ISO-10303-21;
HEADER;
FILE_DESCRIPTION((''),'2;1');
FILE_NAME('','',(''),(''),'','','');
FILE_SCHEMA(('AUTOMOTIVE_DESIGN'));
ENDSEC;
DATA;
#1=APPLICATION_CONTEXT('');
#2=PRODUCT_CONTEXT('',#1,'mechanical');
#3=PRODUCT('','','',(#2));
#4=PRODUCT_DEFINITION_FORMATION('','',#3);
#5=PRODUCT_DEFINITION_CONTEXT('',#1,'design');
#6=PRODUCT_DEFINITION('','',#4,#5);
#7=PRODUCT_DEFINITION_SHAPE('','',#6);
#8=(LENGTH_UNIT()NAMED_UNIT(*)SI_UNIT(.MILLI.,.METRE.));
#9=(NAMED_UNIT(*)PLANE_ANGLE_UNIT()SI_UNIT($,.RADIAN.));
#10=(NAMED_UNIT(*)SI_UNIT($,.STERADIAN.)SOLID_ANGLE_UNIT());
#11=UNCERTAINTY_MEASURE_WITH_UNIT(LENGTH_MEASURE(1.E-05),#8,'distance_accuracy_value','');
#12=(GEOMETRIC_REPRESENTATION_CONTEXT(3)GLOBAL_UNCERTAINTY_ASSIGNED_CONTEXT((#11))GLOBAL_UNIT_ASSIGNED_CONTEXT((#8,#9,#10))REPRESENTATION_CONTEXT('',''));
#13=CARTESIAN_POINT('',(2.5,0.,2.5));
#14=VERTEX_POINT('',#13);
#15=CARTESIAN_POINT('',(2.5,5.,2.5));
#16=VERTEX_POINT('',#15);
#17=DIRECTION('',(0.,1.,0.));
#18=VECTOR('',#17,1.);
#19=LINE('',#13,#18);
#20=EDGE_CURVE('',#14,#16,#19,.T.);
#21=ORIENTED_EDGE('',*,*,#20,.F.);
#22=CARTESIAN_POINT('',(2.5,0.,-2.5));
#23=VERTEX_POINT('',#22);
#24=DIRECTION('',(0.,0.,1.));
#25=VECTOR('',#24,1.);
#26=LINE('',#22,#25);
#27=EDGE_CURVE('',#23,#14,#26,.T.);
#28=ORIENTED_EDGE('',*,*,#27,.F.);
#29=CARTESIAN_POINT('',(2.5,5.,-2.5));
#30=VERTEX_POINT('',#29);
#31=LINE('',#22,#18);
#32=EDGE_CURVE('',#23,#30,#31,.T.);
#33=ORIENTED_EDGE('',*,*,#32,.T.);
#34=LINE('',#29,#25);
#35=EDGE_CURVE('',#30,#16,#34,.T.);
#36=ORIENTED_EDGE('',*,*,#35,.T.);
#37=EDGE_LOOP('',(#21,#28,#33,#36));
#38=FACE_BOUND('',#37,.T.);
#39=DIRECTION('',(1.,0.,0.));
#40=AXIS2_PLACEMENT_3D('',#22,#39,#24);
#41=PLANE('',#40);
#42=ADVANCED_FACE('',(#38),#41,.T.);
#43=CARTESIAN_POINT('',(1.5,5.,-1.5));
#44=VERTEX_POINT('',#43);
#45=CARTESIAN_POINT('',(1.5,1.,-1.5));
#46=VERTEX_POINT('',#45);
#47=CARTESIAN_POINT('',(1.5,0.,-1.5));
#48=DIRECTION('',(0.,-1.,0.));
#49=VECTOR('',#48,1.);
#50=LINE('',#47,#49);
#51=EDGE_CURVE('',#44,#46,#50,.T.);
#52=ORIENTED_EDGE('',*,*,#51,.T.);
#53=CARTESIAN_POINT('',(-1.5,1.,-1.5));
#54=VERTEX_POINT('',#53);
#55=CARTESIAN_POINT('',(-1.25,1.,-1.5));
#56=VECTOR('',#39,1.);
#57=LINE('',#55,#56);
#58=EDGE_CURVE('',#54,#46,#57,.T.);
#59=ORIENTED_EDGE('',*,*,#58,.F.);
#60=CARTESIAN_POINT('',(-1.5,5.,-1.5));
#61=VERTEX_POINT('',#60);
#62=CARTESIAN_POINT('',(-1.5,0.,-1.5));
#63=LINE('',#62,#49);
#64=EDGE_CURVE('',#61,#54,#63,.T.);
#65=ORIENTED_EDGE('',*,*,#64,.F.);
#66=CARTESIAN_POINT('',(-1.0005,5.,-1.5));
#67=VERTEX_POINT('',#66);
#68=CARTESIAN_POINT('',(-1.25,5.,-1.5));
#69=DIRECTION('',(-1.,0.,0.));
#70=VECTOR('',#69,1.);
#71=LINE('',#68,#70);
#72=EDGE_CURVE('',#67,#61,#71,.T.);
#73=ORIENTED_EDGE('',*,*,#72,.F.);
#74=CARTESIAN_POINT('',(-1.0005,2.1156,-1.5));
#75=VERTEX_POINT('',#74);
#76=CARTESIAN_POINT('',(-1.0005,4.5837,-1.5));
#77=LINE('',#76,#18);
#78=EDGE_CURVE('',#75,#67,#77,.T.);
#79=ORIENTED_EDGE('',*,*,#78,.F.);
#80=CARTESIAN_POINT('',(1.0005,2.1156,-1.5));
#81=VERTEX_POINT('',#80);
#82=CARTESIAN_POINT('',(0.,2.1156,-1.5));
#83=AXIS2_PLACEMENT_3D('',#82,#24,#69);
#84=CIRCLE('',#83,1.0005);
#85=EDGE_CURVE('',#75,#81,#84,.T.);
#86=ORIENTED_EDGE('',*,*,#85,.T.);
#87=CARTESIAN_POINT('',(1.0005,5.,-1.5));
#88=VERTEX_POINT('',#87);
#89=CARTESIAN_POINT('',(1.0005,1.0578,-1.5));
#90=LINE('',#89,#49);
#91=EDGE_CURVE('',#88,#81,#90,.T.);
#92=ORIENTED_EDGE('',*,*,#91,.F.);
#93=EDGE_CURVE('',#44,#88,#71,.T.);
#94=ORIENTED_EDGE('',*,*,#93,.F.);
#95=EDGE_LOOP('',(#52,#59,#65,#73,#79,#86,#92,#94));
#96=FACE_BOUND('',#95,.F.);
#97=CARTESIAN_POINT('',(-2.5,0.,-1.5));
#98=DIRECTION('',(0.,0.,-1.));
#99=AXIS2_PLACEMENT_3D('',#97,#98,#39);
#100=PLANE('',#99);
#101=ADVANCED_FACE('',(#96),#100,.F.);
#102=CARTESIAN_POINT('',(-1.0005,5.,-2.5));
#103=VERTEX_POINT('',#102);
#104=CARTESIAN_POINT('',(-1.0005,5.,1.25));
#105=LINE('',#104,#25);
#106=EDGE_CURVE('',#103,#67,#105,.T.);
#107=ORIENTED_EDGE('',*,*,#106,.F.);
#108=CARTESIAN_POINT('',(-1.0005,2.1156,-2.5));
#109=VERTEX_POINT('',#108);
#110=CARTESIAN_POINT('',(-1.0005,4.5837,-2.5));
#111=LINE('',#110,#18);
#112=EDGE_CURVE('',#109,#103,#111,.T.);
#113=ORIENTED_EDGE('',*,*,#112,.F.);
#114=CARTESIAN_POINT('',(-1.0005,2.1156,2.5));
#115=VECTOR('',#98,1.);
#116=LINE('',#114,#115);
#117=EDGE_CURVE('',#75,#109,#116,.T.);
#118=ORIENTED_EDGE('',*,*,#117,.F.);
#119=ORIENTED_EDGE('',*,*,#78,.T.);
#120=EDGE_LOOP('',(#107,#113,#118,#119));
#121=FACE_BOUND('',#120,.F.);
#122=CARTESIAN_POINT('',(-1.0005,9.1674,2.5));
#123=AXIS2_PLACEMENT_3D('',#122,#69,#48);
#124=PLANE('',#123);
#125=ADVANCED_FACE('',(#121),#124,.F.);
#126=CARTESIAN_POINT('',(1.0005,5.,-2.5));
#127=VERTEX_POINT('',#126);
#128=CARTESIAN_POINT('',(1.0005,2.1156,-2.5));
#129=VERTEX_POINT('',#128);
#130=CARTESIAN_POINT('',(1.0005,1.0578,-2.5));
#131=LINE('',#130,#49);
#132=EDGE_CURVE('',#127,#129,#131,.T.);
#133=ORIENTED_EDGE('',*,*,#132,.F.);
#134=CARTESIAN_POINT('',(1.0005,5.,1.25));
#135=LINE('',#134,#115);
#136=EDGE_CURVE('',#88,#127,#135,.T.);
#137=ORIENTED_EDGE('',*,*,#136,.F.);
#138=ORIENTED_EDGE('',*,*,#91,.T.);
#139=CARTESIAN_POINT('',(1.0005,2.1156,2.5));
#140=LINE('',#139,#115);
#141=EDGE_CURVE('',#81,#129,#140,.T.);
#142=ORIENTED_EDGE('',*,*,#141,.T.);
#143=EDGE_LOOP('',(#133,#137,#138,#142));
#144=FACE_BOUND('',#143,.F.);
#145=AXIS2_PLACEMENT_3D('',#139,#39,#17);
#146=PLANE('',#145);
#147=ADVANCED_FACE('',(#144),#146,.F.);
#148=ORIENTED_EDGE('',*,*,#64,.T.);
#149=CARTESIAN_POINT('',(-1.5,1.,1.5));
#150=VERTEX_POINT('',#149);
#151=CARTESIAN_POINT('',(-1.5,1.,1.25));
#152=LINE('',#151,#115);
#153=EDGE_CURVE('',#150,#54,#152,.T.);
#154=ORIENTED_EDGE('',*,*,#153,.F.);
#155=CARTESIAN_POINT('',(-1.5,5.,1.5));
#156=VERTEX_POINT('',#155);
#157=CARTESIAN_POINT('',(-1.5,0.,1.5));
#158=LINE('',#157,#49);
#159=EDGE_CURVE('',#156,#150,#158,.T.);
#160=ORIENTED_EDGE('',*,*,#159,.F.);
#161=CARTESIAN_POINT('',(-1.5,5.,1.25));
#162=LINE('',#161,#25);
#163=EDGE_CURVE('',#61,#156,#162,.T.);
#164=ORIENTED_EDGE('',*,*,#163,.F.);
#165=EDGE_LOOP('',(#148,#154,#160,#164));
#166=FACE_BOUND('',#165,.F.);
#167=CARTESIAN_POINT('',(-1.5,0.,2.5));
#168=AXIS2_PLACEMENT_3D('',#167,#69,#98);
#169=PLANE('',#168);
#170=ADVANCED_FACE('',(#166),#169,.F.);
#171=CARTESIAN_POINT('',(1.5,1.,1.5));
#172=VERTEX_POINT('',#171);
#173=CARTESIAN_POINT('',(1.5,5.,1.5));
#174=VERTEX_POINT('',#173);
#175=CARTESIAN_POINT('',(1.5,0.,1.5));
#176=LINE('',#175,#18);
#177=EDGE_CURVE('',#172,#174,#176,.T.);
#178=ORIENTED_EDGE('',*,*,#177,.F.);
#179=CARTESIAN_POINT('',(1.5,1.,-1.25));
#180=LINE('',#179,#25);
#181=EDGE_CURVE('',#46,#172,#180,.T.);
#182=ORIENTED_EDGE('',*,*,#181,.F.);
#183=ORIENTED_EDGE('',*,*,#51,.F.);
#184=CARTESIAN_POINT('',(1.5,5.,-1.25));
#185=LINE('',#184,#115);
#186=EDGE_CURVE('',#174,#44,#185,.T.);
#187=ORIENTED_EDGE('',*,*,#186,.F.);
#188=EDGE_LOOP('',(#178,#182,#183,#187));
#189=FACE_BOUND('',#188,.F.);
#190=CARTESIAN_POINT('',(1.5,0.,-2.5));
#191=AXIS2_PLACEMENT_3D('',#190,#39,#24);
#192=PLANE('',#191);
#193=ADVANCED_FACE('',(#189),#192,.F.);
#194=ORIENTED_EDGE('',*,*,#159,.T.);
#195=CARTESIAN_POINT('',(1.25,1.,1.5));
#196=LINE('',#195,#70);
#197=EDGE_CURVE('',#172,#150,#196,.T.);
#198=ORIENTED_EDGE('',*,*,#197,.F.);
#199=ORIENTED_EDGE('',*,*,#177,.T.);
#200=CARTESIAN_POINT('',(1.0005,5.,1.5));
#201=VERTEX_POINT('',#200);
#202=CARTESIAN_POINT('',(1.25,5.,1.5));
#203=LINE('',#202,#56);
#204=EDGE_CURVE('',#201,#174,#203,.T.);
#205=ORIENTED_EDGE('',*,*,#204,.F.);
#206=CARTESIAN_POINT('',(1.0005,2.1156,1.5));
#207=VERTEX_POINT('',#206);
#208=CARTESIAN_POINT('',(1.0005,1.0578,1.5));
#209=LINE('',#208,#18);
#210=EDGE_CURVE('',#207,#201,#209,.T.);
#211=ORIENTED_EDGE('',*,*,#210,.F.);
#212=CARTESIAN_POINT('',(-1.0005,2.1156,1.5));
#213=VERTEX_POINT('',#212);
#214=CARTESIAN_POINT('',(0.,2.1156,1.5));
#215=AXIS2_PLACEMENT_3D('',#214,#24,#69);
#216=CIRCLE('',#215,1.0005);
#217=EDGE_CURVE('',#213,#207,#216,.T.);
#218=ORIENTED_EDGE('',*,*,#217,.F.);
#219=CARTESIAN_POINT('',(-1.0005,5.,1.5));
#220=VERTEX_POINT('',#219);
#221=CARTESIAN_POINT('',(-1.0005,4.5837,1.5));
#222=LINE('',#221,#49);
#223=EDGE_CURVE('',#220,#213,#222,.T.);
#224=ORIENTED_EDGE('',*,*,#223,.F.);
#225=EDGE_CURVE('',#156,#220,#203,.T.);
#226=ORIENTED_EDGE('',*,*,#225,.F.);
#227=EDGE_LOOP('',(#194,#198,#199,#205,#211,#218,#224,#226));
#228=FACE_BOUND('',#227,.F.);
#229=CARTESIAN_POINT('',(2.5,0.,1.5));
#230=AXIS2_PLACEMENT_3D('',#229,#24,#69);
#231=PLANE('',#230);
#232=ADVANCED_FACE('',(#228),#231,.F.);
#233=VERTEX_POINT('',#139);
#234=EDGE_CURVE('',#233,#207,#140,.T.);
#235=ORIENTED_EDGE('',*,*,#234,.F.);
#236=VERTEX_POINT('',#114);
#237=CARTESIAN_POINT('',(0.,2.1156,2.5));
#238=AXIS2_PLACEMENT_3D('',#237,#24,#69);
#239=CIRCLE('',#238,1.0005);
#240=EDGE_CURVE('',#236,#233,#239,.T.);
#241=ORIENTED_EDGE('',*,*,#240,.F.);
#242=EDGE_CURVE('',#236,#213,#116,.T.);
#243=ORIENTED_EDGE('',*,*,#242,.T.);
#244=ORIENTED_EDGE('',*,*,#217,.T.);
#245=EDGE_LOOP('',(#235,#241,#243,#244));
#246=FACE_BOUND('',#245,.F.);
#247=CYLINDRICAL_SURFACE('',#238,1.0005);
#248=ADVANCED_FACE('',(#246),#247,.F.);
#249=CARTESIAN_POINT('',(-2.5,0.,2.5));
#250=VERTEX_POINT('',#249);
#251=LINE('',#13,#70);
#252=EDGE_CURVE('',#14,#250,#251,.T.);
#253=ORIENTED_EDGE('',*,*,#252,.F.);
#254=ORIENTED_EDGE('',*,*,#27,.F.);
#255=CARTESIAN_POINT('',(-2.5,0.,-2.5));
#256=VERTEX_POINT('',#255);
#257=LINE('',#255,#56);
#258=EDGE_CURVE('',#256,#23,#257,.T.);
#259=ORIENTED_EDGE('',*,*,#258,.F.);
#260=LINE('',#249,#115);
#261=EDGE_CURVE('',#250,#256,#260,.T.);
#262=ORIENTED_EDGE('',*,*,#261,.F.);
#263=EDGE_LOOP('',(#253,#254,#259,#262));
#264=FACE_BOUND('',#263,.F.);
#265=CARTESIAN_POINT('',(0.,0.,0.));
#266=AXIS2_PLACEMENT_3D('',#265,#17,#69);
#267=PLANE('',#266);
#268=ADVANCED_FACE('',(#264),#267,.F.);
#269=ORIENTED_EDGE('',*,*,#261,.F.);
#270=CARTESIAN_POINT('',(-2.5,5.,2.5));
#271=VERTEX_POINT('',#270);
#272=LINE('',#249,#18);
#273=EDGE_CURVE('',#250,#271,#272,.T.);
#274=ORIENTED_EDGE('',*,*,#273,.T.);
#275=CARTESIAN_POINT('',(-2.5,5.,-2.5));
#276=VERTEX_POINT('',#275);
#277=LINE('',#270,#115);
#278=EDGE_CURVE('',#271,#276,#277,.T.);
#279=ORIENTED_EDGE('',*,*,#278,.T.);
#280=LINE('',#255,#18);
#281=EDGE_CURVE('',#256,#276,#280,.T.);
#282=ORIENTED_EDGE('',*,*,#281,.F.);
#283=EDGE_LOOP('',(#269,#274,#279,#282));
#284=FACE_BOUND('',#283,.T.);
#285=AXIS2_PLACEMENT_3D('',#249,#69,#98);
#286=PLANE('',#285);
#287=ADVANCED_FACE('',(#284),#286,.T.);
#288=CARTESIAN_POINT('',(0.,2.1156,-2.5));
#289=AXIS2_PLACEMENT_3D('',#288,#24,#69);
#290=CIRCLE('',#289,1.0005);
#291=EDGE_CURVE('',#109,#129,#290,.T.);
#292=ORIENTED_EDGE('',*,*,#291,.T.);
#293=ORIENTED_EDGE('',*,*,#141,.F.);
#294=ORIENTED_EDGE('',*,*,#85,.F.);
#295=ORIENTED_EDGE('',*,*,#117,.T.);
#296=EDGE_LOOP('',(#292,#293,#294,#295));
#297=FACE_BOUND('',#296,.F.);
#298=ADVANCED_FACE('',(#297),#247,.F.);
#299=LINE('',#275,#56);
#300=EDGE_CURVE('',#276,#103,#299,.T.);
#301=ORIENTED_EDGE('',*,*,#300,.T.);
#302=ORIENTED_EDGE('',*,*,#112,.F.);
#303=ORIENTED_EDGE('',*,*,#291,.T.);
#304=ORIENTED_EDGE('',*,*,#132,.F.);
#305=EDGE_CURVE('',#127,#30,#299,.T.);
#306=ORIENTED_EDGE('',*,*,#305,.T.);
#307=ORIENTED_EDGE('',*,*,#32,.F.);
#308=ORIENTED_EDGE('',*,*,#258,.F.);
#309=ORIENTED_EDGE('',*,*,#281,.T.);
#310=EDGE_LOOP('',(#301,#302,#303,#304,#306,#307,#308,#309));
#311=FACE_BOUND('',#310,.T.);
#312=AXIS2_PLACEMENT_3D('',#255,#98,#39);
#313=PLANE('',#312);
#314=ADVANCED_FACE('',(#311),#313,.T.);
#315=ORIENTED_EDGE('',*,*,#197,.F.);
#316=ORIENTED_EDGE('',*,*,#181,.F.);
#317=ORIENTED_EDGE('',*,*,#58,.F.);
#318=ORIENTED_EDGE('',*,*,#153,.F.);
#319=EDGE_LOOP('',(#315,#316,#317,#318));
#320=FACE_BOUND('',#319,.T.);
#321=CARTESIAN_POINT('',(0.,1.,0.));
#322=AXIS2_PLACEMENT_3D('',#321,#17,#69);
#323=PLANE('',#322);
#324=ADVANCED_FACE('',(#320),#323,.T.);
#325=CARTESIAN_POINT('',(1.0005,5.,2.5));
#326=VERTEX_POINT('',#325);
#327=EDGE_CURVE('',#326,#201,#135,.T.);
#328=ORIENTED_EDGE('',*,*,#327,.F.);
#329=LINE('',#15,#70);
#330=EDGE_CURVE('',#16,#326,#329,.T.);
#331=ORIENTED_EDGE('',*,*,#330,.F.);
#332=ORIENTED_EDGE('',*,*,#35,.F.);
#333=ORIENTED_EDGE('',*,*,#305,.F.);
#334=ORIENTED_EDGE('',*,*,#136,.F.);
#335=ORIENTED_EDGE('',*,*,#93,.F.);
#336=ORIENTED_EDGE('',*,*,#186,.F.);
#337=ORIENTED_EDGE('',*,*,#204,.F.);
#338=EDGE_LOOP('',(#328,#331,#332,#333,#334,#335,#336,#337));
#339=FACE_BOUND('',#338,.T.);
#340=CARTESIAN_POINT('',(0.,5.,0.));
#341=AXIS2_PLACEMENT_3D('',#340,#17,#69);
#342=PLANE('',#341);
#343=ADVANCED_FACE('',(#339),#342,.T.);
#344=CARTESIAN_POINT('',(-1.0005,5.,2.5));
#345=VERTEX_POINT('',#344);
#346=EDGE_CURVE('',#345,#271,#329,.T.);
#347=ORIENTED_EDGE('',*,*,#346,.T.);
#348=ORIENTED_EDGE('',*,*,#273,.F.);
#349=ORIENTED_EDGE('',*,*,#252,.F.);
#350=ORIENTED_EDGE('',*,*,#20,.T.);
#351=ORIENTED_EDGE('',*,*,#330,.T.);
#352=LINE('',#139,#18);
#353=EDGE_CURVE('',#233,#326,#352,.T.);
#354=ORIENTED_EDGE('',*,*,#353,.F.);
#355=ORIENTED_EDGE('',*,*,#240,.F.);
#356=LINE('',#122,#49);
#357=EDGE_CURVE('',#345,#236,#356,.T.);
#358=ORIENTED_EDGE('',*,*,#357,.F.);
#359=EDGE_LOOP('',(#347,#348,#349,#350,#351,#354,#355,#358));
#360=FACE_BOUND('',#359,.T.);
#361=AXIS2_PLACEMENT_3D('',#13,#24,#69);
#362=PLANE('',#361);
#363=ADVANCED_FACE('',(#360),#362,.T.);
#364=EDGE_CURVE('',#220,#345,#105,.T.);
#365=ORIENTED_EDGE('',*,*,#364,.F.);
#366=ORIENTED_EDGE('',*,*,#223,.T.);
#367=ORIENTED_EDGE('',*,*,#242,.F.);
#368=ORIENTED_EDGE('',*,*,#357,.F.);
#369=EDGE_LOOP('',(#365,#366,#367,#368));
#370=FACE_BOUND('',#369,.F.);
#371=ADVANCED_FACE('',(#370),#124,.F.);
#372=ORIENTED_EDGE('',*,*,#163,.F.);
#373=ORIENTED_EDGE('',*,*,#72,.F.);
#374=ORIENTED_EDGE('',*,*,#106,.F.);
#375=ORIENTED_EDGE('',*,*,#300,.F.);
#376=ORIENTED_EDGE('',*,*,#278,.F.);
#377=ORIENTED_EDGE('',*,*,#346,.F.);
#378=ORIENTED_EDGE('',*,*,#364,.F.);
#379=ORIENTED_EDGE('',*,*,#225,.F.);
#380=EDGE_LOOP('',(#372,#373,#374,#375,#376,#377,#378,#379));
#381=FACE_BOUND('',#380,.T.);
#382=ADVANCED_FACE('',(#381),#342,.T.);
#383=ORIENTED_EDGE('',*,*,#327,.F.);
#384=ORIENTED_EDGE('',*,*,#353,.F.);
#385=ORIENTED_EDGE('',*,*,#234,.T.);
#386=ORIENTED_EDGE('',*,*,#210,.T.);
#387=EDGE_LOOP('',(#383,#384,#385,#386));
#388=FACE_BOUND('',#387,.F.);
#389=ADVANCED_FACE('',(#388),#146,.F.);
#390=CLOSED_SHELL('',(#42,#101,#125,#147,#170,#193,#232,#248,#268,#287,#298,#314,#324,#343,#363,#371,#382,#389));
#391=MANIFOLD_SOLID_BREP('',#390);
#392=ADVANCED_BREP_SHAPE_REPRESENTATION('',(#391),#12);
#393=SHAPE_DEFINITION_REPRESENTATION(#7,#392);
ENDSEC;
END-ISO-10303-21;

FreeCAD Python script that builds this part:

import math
import FreeCAD as App
import Part
import Sketcher

V = App.Vector
Q = App.Units.Quantity


def faces_at(feature, points):
    """Names of the faces that lie closest to the given points."""
    faces = feature.Shape.Faces
    near = lambda p: min(range(len(faces)), key=lambda i: faces[i].distToShape(Part.Vertex(*p))[0])
    return sorted({f"Face{near(p) + 1}" for p in points})

doc = App.newDocument("Part")
body = doc.addObject("PartDesign::Body", "Body")

# Sketch on XZ plane
sketch1 = body.newObject("Sketcher::SketchObject", "Sketch")
sketch1.AttachmentSupport = (doc.getObject("XZ_Plane"), [""])
sketch1.MapMode = "FlatFace"
sketch1.addGeometry([
    Part.LineSegment(V(-2.5, 2.5, 0), V(2.5, 2.5, 0)),
    Part.LineSegment(V(2.5, 2.5, 0), V(2.5, -2.5, 0)),
    Part.LineSegment(V(2.5, -2.5, 0), V(-2.5, -2.5, 0)),
    Part.LineSegment(V(-2.5, -2.5, 0), V(-2.5, 2.5, 0)),
], False)
sketch1.addConstraint([
    Sketcher.Constraint("Coincident", 0, 2, 1, 1),
    Sketcher.Constraint("Coincident", 1, 2, 2, 1),
    Sketcher.Constraint("Coincident", 2, 2, 3, 1),
    Sketcher.Constraint("Coincident", 3, 2, 0, 1),
    Sketcher.Constraint("Horizontal", 0),
    Sketcher.Constraint("Vertical", 1),
    Sketcher.Constraint("Horizontal", 2),
    Sketcher.Constraint("Vertical", 3),
    Sketcher.Constraint("Symmetric", 0, 2, 2, 2, -1, 1),
    Sketcher.Constraint("Equal", 2, 1),
    Sketcher.Constraint("DistanceX", 0, 1, 0, 2, Q("5 mm")),
])
pad1 = body.newObject("PartDesign::Pad", "Pad")
pad1.Profile = sketch1
pad1.Length = 5
pad1.Reversed = True
doc.recompute()

thickness = body.newObject("PartDesign::Thickness", "Thickness")
thickness.Base = (pad1, faces_at(pad1, [(-0.833, 5, -0.833)]))
thickness.Value = 1
thickness.Reversed = True
thickness.Join = "Intersection"

# Sketch on XY plane
sketch2 = body.newObject("Sketcher::SketchObject", "Sketch001")
sketch2.AttachmentSupport = (doc.getObject("XY_Plane"), [""])
sketch2.MapMode = "FlatFace"
sketch2.AttachmentOffset = App.Placement(V(0, 0, 2.5), App.Rotation())
sketch2.addGeometry([
    Part.ArcOfCircle(Part.Circle(V(0, 9.1674, 0), V(0, 0, 1), 1.0005), math.radians(0), math.radians(180)),
    Part.LineSegment(V(-1.0005, 9.1674, 0), V(-1.0005, 2.1156, 0)),
    Part.ArcOfCircle(Part.Circle(V(0, 2.1156, 0), V(0, 0, 1), 1.0005), math.radians(180), math.radians(360)),
    Part.LineSegment(V(1.0005, 2.1156, 0), V(1.0005, 9.1674, 0)),
], False)
sketch2.addConstraint([
    Sketcher.Constraint("Tangent", 0, 2, 1, 1),
    Sketcher.Constraint("Tangent", 1, 2, 2, 1),
    Sketcher.Constraint("Tangent", 2, 2, 3, 1),
    Sketcher.Constraint("Tangent", 3, 2, 0, 1),
    Sketcher.Constraint("Vertical", 1),
    Sketcher.Constraint("Vertical", 3),
    Sketcher.Constraint("PointOnObject", 0, 3, -2),
    Sketcher.Constraint("Radius", 0, Q("1.0005 mm")),
    Sketcher.Constraint("DistanceY", 1, 2, 1, 1, Q("7.0518 mm")),
    Sketcher.Constraint("DistanceY", -1, 1, 0, 3, Q("9.1674 mm")),
])
pocket1 = body.newObject("PartDesign::Pocket", "Pocket")
pocket1.Profile = sketch2
pocket1.Type = "ThroughAll"

doc.recompute()
